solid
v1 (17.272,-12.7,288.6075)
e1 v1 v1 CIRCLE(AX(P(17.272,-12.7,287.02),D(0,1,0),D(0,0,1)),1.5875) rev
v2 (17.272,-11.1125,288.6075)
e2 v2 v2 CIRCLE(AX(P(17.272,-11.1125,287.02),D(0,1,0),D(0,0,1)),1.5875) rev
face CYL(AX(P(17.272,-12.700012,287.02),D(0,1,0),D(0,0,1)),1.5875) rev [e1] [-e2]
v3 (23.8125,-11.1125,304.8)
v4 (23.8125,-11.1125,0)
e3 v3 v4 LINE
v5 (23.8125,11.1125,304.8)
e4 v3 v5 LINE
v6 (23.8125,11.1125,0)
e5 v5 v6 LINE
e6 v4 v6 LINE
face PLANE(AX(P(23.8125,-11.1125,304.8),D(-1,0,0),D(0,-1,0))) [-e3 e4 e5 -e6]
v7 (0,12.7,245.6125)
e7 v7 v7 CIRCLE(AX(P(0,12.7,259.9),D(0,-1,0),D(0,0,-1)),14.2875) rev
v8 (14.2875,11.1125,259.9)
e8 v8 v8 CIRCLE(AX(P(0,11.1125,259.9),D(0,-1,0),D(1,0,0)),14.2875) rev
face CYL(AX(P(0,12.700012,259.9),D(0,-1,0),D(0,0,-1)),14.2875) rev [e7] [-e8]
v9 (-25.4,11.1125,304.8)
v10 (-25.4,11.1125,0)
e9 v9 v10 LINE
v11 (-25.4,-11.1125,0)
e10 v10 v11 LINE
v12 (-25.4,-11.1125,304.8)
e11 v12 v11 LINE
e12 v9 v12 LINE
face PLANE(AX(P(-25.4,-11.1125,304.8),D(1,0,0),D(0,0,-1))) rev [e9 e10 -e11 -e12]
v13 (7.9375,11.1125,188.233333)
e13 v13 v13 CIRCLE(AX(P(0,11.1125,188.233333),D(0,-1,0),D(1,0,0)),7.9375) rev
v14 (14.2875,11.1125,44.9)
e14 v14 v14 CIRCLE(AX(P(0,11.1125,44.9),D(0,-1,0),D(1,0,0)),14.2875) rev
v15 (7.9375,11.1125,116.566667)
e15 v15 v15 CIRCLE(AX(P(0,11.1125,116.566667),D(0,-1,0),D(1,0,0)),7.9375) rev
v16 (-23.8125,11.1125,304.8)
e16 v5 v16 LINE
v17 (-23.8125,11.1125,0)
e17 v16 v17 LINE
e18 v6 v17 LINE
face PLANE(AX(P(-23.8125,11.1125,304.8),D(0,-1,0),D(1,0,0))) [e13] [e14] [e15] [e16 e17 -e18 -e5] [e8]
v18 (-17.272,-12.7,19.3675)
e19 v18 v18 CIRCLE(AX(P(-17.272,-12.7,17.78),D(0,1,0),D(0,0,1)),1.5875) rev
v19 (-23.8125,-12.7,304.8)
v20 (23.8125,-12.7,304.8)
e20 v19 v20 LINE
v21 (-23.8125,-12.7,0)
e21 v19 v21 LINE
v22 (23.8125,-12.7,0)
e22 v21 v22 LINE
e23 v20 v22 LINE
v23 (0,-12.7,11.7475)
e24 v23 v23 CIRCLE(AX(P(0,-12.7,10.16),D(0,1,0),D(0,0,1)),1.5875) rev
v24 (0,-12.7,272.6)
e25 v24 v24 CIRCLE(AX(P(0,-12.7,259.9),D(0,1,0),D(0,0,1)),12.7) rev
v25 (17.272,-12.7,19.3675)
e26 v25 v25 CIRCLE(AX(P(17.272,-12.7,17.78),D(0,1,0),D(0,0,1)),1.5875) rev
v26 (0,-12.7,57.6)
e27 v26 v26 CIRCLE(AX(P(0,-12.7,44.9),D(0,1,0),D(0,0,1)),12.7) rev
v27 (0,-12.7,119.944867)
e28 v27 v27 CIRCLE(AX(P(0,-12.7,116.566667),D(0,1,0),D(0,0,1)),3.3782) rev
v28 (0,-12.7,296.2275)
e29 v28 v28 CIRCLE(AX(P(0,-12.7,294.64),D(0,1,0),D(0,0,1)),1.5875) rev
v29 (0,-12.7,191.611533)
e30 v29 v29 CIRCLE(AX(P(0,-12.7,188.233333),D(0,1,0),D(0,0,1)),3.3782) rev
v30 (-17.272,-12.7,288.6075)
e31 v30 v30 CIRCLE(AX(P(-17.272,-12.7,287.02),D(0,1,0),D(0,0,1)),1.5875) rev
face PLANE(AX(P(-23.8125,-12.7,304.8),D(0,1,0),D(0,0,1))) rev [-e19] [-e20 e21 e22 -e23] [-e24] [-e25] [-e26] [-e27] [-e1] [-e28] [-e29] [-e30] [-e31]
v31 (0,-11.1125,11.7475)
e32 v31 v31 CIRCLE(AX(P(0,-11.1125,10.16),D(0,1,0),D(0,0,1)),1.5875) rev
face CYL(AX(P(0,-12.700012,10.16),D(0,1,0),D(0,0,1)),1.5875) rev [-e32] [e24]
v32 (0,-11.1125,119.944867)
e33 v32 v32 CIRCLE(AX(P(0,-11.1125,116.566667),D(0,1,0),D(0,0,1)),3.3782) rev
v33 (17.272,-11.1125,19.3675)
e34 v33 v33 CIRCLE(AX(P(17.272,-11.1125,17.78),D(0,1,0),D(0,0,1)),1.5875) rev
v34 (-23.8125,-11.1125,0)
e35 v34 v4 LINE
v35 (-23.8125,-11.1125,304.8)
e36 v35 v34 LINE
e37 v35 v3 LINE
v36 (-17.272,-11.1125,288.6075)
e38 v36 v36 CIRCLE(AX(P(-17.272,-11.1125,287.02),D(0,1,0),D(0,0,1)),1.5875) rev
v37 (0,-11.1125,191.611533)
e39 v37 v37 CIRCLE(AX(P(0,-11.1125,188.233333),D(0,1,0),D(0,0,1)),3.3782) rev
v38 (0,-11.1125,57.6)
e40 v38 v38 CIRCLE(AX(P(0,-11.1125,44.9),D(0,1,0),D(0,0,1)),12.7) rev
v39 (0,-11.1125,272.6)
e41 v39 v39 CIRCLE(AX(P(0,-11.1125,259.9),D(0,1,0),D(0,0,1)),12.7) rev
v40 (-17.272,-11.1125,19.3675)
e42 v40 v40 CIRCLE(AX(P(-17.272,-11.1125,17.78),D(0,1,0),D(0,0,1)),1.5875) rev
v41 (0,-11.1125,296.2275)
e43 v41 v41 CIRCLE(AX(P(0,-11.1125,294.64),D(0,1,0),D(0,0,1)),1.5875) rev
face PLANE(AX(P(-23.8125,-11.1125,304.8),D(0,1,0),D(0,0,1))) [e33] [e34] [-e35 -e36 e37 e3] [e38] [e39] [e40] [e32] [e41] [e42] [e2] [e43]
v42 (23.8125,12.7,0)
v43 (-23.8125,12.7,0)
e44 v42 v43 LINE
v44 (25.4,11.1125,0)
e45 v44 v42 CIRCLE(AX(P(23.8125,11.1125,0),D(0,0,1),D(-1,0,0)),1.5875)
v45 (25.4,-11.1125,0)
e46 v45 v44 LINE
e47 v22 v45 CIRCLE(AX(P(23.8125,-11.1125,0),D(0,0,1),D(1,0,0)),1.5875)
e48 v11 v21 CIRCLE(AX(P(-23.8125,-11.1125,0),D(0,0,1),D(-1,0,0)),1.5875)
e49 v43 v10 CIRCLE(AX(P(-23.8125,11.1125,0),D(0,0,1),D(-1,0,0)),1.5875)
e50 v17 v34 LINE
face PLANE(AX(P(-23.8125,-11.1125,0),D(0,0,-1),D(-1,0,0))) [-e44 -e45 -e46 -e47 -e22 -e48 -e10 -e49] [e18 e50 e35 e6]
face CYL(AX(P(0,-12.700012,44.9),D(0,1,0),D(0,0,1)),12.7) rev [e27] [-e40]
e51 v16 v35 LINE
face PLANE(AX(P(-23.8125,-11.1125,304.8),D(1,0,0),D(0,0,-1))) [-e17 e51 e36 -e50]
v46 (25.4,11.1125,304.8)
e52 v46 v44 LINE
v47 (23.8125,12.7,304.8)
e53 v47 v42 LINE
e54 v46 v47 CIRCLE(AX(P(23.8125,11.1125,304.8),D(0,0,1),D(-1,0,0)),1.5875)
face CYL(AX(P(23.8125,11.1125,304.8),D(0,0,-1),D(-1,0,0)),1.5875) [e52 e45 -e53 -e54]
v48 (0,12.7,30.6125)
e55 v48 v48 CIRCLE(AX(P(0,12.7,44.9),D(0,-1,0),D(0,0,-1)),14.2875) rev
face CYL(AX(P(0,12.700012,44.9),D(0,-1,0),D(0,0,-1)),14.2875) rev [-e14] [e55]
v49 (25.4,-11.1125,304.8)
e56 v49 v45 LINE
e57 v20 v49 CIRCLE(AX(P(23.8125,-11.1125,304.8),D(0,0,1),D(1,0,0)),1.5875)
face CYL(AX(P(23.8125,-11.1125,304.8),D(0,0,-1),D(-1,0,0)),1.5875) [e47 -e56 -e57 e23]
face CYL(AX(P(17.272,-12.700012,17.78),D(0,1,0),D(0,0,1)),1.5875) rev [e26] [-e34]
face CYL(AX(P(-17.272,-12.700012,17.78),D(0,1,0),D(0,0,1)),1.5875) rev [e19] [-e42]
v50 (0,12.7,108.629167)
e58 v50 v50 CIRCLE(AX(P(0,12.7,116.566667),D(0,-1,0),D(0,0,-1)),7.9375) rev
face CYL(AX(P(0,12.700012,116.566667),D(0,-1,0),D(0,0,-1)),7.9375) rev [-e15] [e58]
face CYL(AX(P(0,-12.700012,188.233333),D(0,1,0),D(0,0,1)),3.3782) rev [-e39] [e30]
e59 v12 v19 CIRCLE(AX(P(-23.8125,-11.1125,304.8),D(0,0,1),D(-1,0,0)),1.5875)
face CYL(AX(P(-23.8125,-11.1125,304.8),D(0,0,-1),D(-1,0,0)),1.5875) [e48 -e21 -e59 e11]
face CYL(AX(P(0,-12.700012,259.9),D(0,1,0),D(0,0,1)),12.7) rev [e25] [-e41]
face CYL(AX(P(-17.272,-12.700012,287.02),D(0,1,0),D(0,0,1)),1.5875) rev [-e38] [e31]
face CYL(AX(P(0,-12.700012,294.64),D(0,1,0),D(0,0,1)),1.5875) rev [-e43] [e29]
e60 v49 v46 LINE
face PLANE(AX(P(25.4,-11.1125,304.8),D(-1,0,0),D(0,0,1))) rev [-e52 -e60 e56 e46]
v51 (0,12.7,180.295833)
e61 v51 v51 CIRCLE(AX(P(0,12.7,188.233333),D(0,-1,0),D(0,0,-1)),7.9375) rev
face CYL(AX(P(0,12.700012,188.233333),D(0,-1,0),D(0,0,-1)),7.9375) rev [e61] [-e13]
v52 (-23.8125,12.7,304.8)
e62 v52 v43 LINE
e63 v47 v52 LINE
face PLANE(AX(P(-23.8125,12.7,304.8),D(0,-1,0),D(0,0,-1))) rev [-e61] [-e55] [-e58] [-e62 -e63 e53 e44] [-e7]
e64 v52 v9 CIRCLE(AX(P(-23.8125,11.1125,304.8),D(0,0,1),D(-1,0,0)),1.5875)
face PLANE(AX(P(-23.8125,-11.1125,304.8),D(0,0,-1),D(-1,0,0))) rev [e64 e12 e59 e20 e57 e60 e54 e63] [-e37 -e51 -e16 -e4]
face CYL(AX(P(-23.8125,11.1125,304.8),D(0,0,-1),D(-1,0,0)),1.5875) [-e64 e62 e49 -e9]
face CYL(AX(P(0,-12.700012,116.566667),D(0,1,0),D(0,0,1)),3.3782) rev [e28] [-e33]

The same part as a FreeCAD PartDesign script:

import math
import FreeCAD as App
import Part
import Sketcher
from FreeCAD import Vector
Q = App.Units.Quantity

doc = App.newDocument("Part")
params = doc.addObject("Spreadsheet::Sheet", "Params")
for row, (alias, value) in enumerate([
    ("sketch1_radius", "0.0625 in"),
    ("pad1_length", "12 in"),
    ("sketch2_diameter", "1.125 in"),
    ("sketch3_diameter", "1.125 in"),
    ("sketch4_diameter", "1.125 in"),
    ("pocket3_length", "1 mm"),
    ("sketch5_diameter", "1 in"),
    ("sketch6_diameter", "1 in"),
    ("sketch7_diameter", "1 in"),
    ("pocket6_length", "1 mm"),
    ("sketch8_diameter", "0.266 in"),
    ("sketch9_diameter", "0.266 in"),
    ("sketch10_diameter", "0.266 in"),
    ("pocket9_length", "1 mm"),
    ("sketch11_diameter", "0.625 in"),
    ("sketch12_diameter", "0.625 in"),
    ("sketch13_diameter", "0.625 in"),
    ("pocket12_length", "1 mm"),
    ("sketch14_diameter", "0.125 in"),
    ("sketch15_diameter", "0.125 in"),
    ("sketch16_diameter", "0.125 in"),
    ("sketch17_diameter", "0.125 in"),
    ("sketch18_diameter", "0.125 in"),
    ("sketch19_diameter", "0.125 in"),
    ("sketch20_diameter", "0.125 in"),
    ("pocket19_length", "1 mm"),
], start=1):
    params.set(f"A{row}", alias)
    params.set(f"B{row}", "=" + value)
    params.setAlias(f"B{row}", alias)

body = doc.addObject("PartDesign::Body", "Body")

# Sketch on XY plane
sketch1 = body.newObject("Sketcher::SketchObject", "Sketch")
sketch1.AttachmentSupport = (doc.getObject("XY_Plane"), [""])
sketch1.MapMode = "FlatFace"
sketch1.addGeometry(Part.LineSegment(Vector(-23.8, -12.7, 0), Vector(23.8, -12.7, 0)), False)
sketch1.addGeometry(Part.ArcOfCircle(Part.Circle(Vector(23.8, -11.1, 0), Vector(0, 0, 1), 1.6), math.radians(-90), math.radians(0)), False)
sketch1.addGeometry(Part.LineSegment(Vector(25.4, -11.1, 0), Vector(25.4, 11.1, 0)), False)
sketch1.addGeometry(Part.ArcOfCircle(Part.Circle(Vector(23.8, 11.1, 0), Vector(0, 0, 1), 1.6), math.radians(0), math.radians(90)), False)
sketch1.addGeometry(Part.LineSegment(Vector(23.8, 12.7, 0), Vector(-23.8, 12.7, 0)), False)
sketch1.addGeometry(Part.ArcOfCircle(Part.Circle(Vector(-23.8, 11.1, 0), Vector(0, 0, 1), 1.6), math.radians(90), math.radians(180)), False)
sketch1.addGeometry(Part.LineSegment(Vector(-25.4, 11.1, 0), Vector(-25.4, -11.1, 0)), False)
sketch1.addGeometry(Part.ArcOfCircle(Part.Circle(Vector(-23.8, -11.1, 0), Vector(0, 0, 1), 1.6), math.radians(180), math.radians(270)), False)
sketch1.addGeometry(Part.LineSegment(Vector(23.8, -11.1, 0), Vector(-23.8, -11.1, 0)), False)
sketch1.addGeometry(Part.LineSegment(Vector(-23.8, -11.1, 0), Vector(-23.8, 11.1, 0)), False)
sketch1.addGeometry(Part.LineSegment(Vector(-23.8, 11.1, 0), Vector(23.8, 11.1, 0)), False)
sketch1.addGeometry(Part.LineSegment(Vector(23.8, 11.1, 0), Vector(23.8, -11.1, 0)), False)
sketch1.addConstraint(Sketcher.Constraint("Tangent", 0, 2, 1, 1))
sketch1.addConstraint(Sketcher.Constraint("Tangent", 1, 2, 2, 1))
sketch1.addConstraint(Sketcher.Constraint("Tangent", 2, 2, 3, 1))
sketch1.addConstraint(Sketcher.Constraint("Tangent", 3, 2, 4, 1))
sketch1.addConstraint(Sketcher.Constraint("Tangent", 4, 2, 5, 1))
sketch1.addConstraint(Sketcher.Constraint("Tangent", 5, 2, 6, 1))
sketch1.addConstraint(Sketcher.Constraint("Tangent", 6, 2, 7, 1))
sketch1.addConstraint(Sketcher.Constraint("Tangent", 7, 2, 0, 1))
sketch1.addConstraint(Sketcher.Constraint("Coincident", 8, 2, 9, 1))
sketch1.addConstraint(Sketcher.Constraint("Coincident", 9, 2, 10, 1))
sketch1.addConstraint(Sketcher.Constraint("Coincident", 10, 2, 11, 1))
sketch1.addConstraint(Sketcher.Constraint("Coincident", 11, 2, 8, 1))
sketch1.addConstraint(Sketcher.Constraint("Horizontal", 0))
sketch1.addConstraint(Sketcher.Constraint("Vertical", 2))
sketch1.addConstraint(Sketcher.Constraint("Horizontal", 4))
sketch1.addConstraint(Sketcher.Constraint("Vertical", 6))
sketch1.addConstraint(Sketcher.Constraint("Horizontal", 8))
sketch1.addConstraint(Sketcher.Constraint("Vertical", 9))
sketch1.addConstraint(Sketcher.Constraint("Horizontal", 10))
sketch1.addConstraint(Sketcher.Constraint("Vertical", 11))
sketch1.addConstraint(Sketcher.Constraint("Coincident", 8, 2, 7, 3))
sketch1.addConstraint(Sketcher.Constraint("Coincident", 9, 2, 5, 3))
sketch1.addConstraint(Sketcher.Constraint("Coincident", 10, 2, 3, 3))
sketch1.addConstraint(Sketcher.Constraint("Equal", 1, 3))
sketch1.addConstraint(Sketcher.Constraint("Symmetric", 1, 3, 5, 3, -1, 1))
sketch1.addConstraint(Sketcher.Constraint("DistanceX", -1, 1, 1, 2, Q("1 in")))
sketch1.addConstraint(Sketcher.Constraint("Radius", 1, Q("0.0625 in")))
sketch1.addConstraint(Sketcher.Constraint("DistanceY", 0, 2, 3, 2, Q("1 in")))
sketch1.setExpression("Constraints[26]", "Params.sketch1_radius")
pad1 = body.newObject("PartDesign::Pad", "Pad")
pad1.Profile = sketch1
pad1.setExpression("Length", "Params.pad1_length")

# Sketch on XZ plane
sketch2 = body.newObject("Sketcher::SketchObject", "Sketch001")
sketch2.AttachmentSupport = (doc.getObject("XZ_Plane"), [""])
sketch2.MapMode = "FlatFace"
sketch2.AttachmentOffset = App.Placement(Vector(0, 0, -0.5 * 25.4), App.Rotation())
sketch2.addGeometry(Part.Circle(Vector(0, 260, 0), Vector(0, 0, 1), 14), False)
sketch2.addConstraint(Sketcher.Constraint("PointOnObject", 0, 3, -2))
sketch2.addConstraint(Sketcher.Constraint("Diameter", 0, Q("1.125 in")))
sketch2.addConstraint(Sketcher.Constraint("DistanceY", -1, 1, 0, 3, Q("259.9 mm")))
sketch2.setExpression("Constraints[1]", "Params.sketch2_diameter")
pocket1 = body.newObject("PartDesign::Pocket", "Pocket")
pocket1.Profile = sketch2
pocket1.Type = "UpToFirst"
pocket1.Reversed = True

# Sketch on XZ plane
sketch3 = body.newObject("Sketcher::SketchObject", "Sketch002")
sketch3.AttachmentSupport = (doc.getObject("XZ_Plane"), [""])
sketch3.MapMode = "FlatFace"
sketch3.AttachmentOffset = App.Placement(Vector(0, 0, -0.5 * 25.4), App.Rotation())
sketch3.addGeometry(Part.Circle(Vector(0, 45, 0), Vector(0, 0, 1), 14), False)
sketch3.addConstraint(Sketcher.Constraint("PointOnObject", 0, 3, -2))
sketch3.addConstraint(Sketcher.Constraint("Diameter", 0, Q("1.125 in")))
sketch3.addConstraint(Sketcher.Constraint("DistanceY", -1, 1, 0, 3, Q("44.9 mm")))
sketch3.setExpression("Constraints[1]", "Params.sketch3_diameter")
pocket2 = body.newObject("PartDesign::Pocket", "Pocket001")
pocket2.Profile = sketch3
pocket2.Type = "UpToFirst"
pocket2.Reversed = True

# Sketch on XZ plane
sketch4 = body.newObject("Sketcher::SketchObject", "Sketch003")
sketch4.AttachmentSupport = (doc.getObject("XZ_Plane"), [""])
sketch4.MapMode = "FlatFace"
sketch4.AttachmentOffset = App.Placement(Vector(0, 0, -0.5 * 25.4), App.Rotation())
sketch4.addGeometry(Part.Circle(Vector(0, 260, 0), Vector(0, 0, 1), 14), False)
sketch4.addGeometry(Part.Circle(Vector(0, 45, 0), Vector(0, 0, 1), 14), False)
sketch4.addConstraint(Sketcher.Constraint("Equal", 0, 1))
sketch4.addConstraint(Sketcher.Constraint("PointOnObject", 0, 3, -2))
sketch4.addConstraint(Sketcher.Constraint("PointOnObject", 1, 3, -2))
sketch4.addConstraint(Sketcher.Constraint("Diameter", 0, Q("1.125 in")))
sketch4.addConstraint(Sketcher.Constraint("DistanceY", -1, 1, 0, 3, Q("259.9 mm")))
sketch4.addConstraint(Sketcher.Constraint("DistanceY", -1, 1, 1, 3, Q("44.9 mm")))
sketch4.setExpression("Constraints[3]", "Params.sketch4_diameter")
pocket3 = body.newObject("PartDesign::Pocket", "Pocket002")
pocket3.Profile = sketch4
pocket3.setExpression("Length", "Params.pocket3_length")

# Sketch on XZ plane
sketch5 = body.newObject("Sketcher::SketchObject", "Sketch004")
sketch5.AttachmentSupport = (doc.getObject("XZ_Plane"), [""])
sketch5.MapMode = "FlatFace"
sketch5.AttachmentOffset = App.Placement(Vector(0, 0, 0.5 * 25.4), App.Rotation())
sketch5.addGeometry(Part.Circle(Vector(0, 45, 0), Vector(0, 0, 1), 13), False)
sketch5.addConstraint(Sketcher.Constraint("PointOnObject", 0, 3, -2))
sketch5.addConstraint(Sketcher.Constraint("Diameter", 0, Q("1 in")))
sketch5.addConstraint(Sketcher.Constraint("DistanceY", -1, 1, 0, 3, Q("44.9 mm")))
sketch5.setExpression("Constraints[1]", "Params.sketch5_diameter")
pocket4 = body.newObject("PartDesign::Pocket", "Pocket003")
pocket4.Profile = sketch5
pocket4.Type = "UpToFirst"

# Sketch on XZ plane
sketch6 = body.newObject("Sketcher::SketchObject", "Sketch005")
sketch6.AttachmentSupport = (doc.getObject("XZ_Plane"), [""])
sketch6.MapMode = "FlatFace"
sketch6.AttachmentOffset = App.Placement(Vector(0, 0, 0.5 * 25.4), App.Rotation())
sketch6.addGeometry(Part.Circle(Vector(0, 260, 0), Vector(0, 0, 1), 13), False)
sketch6.addConstraint(Sketcher.Constraint("PointOnObject", 0, 3, -2))
sketch6.addConstraint(Sketcher.Constraint("Diameter", 0, Q("1 in")))
sketch6.addConstraint(Sketcher.Constraint("DistanceY", -1, 1, 0, 3, Q("259.9 mm")))
sketch6.setExpression("Constraints[1]", "Params.sketch6_diameter")
pocket5 = body.newObject("PartDesign::Pocket", "Pocket004")
pocket5.Profile = sketch6
pocket5.Type = "UpToFirst"

# Sketch on XZ plane
sketch7 = body.newObject("Sketcher::SketchObject", "Sketch006")
sketch7.AttachmentSupport = (doc.getObject("XZ_Plane"), [""])
sketch7.MapMode = "FlatFace"
sketch7.AttachmentOffset = App.Placement(Vector(0, 0, 0.5 * 25.4), App.Rotation())
sketch7.addGeometry(Part.Circle(Vector(0, 45, 0), Vector(0, 0, 1), 13), False)
sketch7.addGeometry(Part.Circle(Vector(0, 260, 0), Vector(0, 0, 1), 13), False)
sketch7.addConstraint(Sketcher.Constraint("Equal", 0, 1))
sketch7.addConstraint(Sketcher.Constraint("PointOnObject", 0, 3, -2))
sketch7.addConstraint(Sketcher.Constraint("PointOnObject", 1, 3, -2))
sketch7.addConstraint(Sketcher.Constraint("Diameter", 0, Q("1 in")))
sketch7.addConstraint(Sketcher.Constraint("DistanceY", -1, 1, 0, 3, Q("44.9 mm")))
sketch7.addConstraint(Sketcher.Constraint("DistanceY", -1, 1, 1, 3, Q("259.9 mm")))
sketch7.setExpression("Constraints[3]", "Params.sketch7_diameter")
pocket6 = body.newObject("PartDesign::Pocket", "Pocket005")
pocket6.Profile = sketch7
pocket6.setExpression("Length", "Params.pocket6_length")
pocket6.Reversed = True

# Sketch on XZ plane
sketch8 = body.newObject("Sketcher::SketchObject", "Sketch007")
sketch8.AttachmentSupport = (doc.getObject("XZ_Plane"), [""])
sketch8.MapMode = "FlatFace"
sketch8.AttachmentOffset = App.Placement(Vector(0, 0, 0.5 * 25.4), App.Rotation())
sketch8.addGeometry(Part.Circle(Vector(0, 116.6, 0), Vector(0, 0, 1), 3.4), False)
sketch8.addConstraint(Sketcher.Constraint("PointOnObject", 0, 3, -2))
sketch8.addConstraint(Sketcher.Constraint("Diameter", 0, Q("0.266 in")))
sketch8.addConstraint(Sketcher.Constraint("DistanceY", -1, 1, 0, 3, Q("116.566667 mm")))
sketch8.setExpression("Constraints[1]", "Params.sketch8_diameter")
pocket7 = body.newObject("PartDesign::Pocket", "Pocket006")
pocket7.Profile = sketch8
pocket7.Type = "UpToFirst"

# Sketch on XZ plane
sketch9 = body.newObject("Sketcher::SketchObject", "Sketch008")
sketch9.AttachmentSupport = (doc.getObject("XZ_Plane"), [""])
sketch9.MapMode = "FlatFace"
sketch9.AttachmentOffset = App.Placement(Vector(0, 0, 0.5 * 25.4), App.Rotation())
sketch9.addGeometry(Part.Circle(Vector(0, 188.2, 0), Vector(0, 0, 1), 3.4), False)
sketch9.addConstraint(Sketcher.Constraint("PointOnObject", 0, 3, -2))
sketch9.addConstraint(Sketcher.Constraint("Diameter", 0, Q("0.266 in")))
sketch9.addConstraint(Sketcher.Constraint("DistanceY", -1, 1, 0, 3, Q("188.233333 mm")))
sketch9.setExpression("Constraints[1]", "Params.sketch9_diameter")
pocket8 = body.newObject("PartDesign::Pocket", "Pocket007")
pocket8.Profile = sketch9
pocket8.Type = "UpToFirst"

# Sketch on XZ plane
sketch10 = body.newObject("Sketcher::SketchObject", "Sketch009")
sketch10.AttachmentSupport = (doc.getObject("XZ_Plane"), [""])
sketch10.MapMode = "FlatFace"
sketch10.AttachmentOffset = App.Placement(Vector(0, 0, 0.5 * 25.4), App.Rotation())
sketch10.addGeometry(Part.Circle(Vector(0, 116.6, 0), Vector(0, 0, 1), 3.4), False)
sketch10.addGeometry(Part.Circle(Vector(0, 188.2, 0), Vector(0, 0, 1), 3.4), False)
sketch10.addConstraint(Sketcher.Constraint("Equal", 0, 1))
sketch10.addConstraint(Sketcher.Constraint("PointOnObject", 0, 3, -2))
sketch10.addConstraint(Sketcher.Constraint("PointOnObject", 1, 3, -2))
sketch10.addConstraint(Sketcher.Constraint("Diameter", 0, Q("0.266 in")))
sketch10.addConstraint(Sketcher.Constraint("DistanceY", -1, 1, 0, 3, Q("116.566667 mm")))
sketch10.addConstraint(Sketcher.Constraint("DistanceY", -1, 1, 1, 3, Q("188.233333 mm")))
sketch10.setExpression("Constraints[3]", "Params.sketch10_diameter")
pocket9 = body.newObject("PartDesign::Pocket", "Pocket008")
pocket9.Profile = sketch10
pocket9.setExpression("Length", "Params.pocket9_length")
pocket9.Reversed = True

# Sketch on XZ plane
sketch11 = body.newObject("Sketcher::SketchObject", "Sketch010")
sketch11.AttachmentSupport = (doc.getObject("XZ_Plane"), [""])
sketch11.MapMode = "FlatFace"
sketch11.AttachmentOffset = App.Placement(Vector(0, 0, -0.5 * 25.4), App.Rotation())
sketch11.addGeometry(Part.Circle(Vector(0, 117, 0), Vector(0, 0, 1), 8), False)
sketch11.addConstraint(Sketcher.Constraint("PointOnObject", 0, 3, -2))
sketch11.addConstraint(Sketcher.Constraint("Diameter", 0, Q("0.625 in")))
sketch11.addConstraint(Sketcher.Constraint("DistanceY", -1, 1, 0, 3, Q("116.566667 mm")))
sketch11.setExpression("Constraints[1]", "Params.sketch11_diameter")
pocket10 = body.newObject("PartDesign::Pocket", "Pocket009")
pocket10.Profile = sketch11
pocket10.Type = "UpToFirst"
pocket10.Reversed = True

# Sketch on XZ plane
sketch12 = body.newObject("Sketcher::SketchObject", "Sketch011")
sketch12.AttachmentSupport = (doc.getObject("XZ_Plane"), [""])
sketch12.MapMode = "FlatFace"
sketch12.AttachmentOffset = App.Placement(Vector(0, 0, -0.5 * 25.4), App.Rotation())
sketch12.addGeometry(Part.Circle(Vector(0, 188, 0), Vector(0, 0, 1), 8), False)
sketch12.addConstraint(Sketcher.Constraint("PointOnObject", 0, 3, -2))
sketch12.addConstraint(Sketcher.Constraint("Diameter", 0, Q("0.625 in")))
sketch12.addConstraint(Sketcher.Constraint("DistanceY", -1, 1, 0, 3, Q("188.233333 mm")))
sketch12.setExpression("Constraints[1]", "Params.sketch12_diameter")
pocket11 = body.newObject("PartDesign::Pocket", "Pocket010")
pocket11.Profile = sketch12
pocket11.Type = "UpToFirst"
pocket11.Reversed = True

# Sketch on XZ plane
sketch13 = body.newObject("Sketcher::SketchObject", "Sketch012")
sketch13.AttachmentSupport = (doc.getObject("XZ_Plane"), [""])
sketch13.MapMode = "FlatFace"
sketch13.AttachmentOffset = App.Placement(Vector(0, 0, -0.5 * 25.4), App.Rotation())
sketch13.addGeometry(Part.Circle(Vector(0, 117, 0), Vector(0, 0, 1), 8), False)
sketch13.addGeometry(Part.Circle(Vector(0, 188, 0), Vector(0, 0, 1), 8), False)
sketch13.addConstraint(Sketcher.Constraint("Equal", 0, 1))
sketch13.addConstraint(Sketcher.Constraint("PointOnObject", 0, 3, -2))
sketch13.addConstraint(Sketcher.Constraint("PointOnObject", 1, 3, -2))
sketch13.addConstraint(Sketcher.Constraint("Diameter", 0, Q("0.625 in")))
sketch13.addConstraint(Sketcher.Constraint("DistanceY", -1, 1, 0, 3, Q("116.566667 mm")))
sketch13.addConstraint(Sketcher.Constraint("DistanceY", -1, 1, 1, 3, Q("188.233333 mm")))
sketch13.setExpression("Constraints[3]", "Params.sketch13_diameter")
pocket12 = body.newObject("PartDesign::Pocket", "Pocket011")
pocket12.Profile = sketch13
pocket12.setExpression("Length", "Params.pocket12_length")

# Sketch on XZ plane
sketch14 = body.newObject("Sketcher::SketchObject", "Sketch013")
sketch14.AttachmentSupport = (doc.getObject("XZ_Plane"), [""])
sketch14.MapMode = "FlatFace"
sketch14.AttachmentOffset = App.Placement(Vector(0, 0, 0.5 * 25.4), App.Rotation())
sketch14.addGeometry(Part.Circle(Vector(17.3, 287, 0), Vector(0, 0, 1), 1.6), False)
sketch14.addConstraint(Sketcher.Constraint("Diameter", 0, Q("0.125 in")))
sketch14.addConstraint(Sketcher.Constraint("DistanceY", -1, 1, 0, 3, Q("11.3 in")))
sketch14.addConstraint(Sketcher.Constraint("DistanceX", -1, 1, 0, 3, Q("0.68 in")))
sketch14.setExpression("Constraints[0]", "Params.sketch14_diameter")
pocket13 = body.newObject("PartDesign::Pocket", "Pocket012")
pocket13.Profile = sketch14
pocket13.Type = "UpToFirst"

# Sketch on XZ plane
sketch15 = body.newObject("Sketcher::SketchObject", "Sketch014")
sketch15.AttachmentSupport = (doc.getObject("XZ_Plane"), [""])
sketch15.MapMode = "FlatFace"
sketch15.AttachmentOffset = App.Placement(Vector(0, 0, 0.5 * 25.4), App.Rotation())
sketch15.addGeometry(Part.Circle(Vector(0, 294.6, 0), Vector(0, 0, 1), 1.6), False)
sketch15.addConstraint(Sketcher.Constraint("PointOnObject", 0, 3, -2))
sketch15.addConstraint(Sketcher.Constraint("Diameter", 0, Q("0.125 in")))
sketch15.addConstraint(Sketcher.Constraint("DistanceY", -1, 1, 0, 3, Q("11.6 in")))
sketch15.setExpression("Constraints[1]", "Params.sketch15_diameter")
pocket14 = body.newObject("PartDesign::Pocket", "Pocket013")
pocket14.Profile = sketch15
pocket14.Type = "UpToFirst"

# Sketch on XZ plane
sketch16 = body.newObject("Sketcher::SketchObject", "Sketch015")
sketch16.AttachmentSupport = (doc.getObject("XZ_Plane"), [""])
sketch16.MapMode = "FlatFace"
sketch16.AttachmentOffset = App.Placement(Vector(0, 0, 0.5 * 25.4), App.Rotation())
sketch16.addGeometry(Part.Circle(Vector(-17.3, 287, 0), Vector(0, 0, 1), 1.6), False)
sketch16.addConstraint(Sketcher.Constraint("Diameter", 0, Q("0.125 in")))
sketch16.addConstraint(Sketcher.Constraint("DistanceY", -1, 1, 0, 3, Q("11.3 in")))
sketch16.addConstraint(Sketcher.Constraint("DistanceX", 0, 3, -1, 1, Q("0.68 in")))
sketch16.setExpression("Constraints[0]", "Params.sketch16_diameter")
pocket15 = body.newObject("PartDesign::Pocket", "Pocket014")
pocket15.Profile = sketch16
pocket15.Type = "UpToFirst"

# Sketch on XZ plane
sketch17 = body.newObject("Sketcher::SketchObject", "Sketch016")
sketch17.AttachmentSupport = (doc.getObject("XZ_Plane"), [""])
sketch17.MapMode = "FlatFace"
sketch17.AttachmentOffset = App.Placement(Vector(0, 0, 0.5 * 25.4), App.Rotation())
sketch17.addGeometry(Part.Circle(Vector(-17.3, 17.8, 0), Vector(0, 0, 1), 1.6), False)
sketch17.addConstraint(Sketcher.Constraint("Diameter", 0, Q("0.125 in")))
sketch17.addConstraint(Sketcher.Constraint("DistanceY", -1, 1, 0, 3, Q("0.7 in")))
sketch17.addConstraint(Sketcher.Constraint("DistanceX", 0, 3, -1, 1, Q("0.68 in")))
sketch17.setExpression("Constraints[0]", "Params.sketch17_diameter")
pocket16 = body.newObject("PartDesign::Pocket", "Pocket015")
pocket16.Profile = sketch17
pocket16.Type = "UpToFirst"

# Sketch on XZ plane
sketch18 = body.newObject("Sketcher::SketchObject", "Sketch017")
sketch18.AttachmentSupport = (doc.getObject("XZ_Plane"), [""])
sketch18.MapMode = "FlatFace"
sketch18.AttachmentOffset = App.Placement(Vector(0, 0, 0.5 * 25.4), App.Rotation())
sketch18.addGeometry(Part.Circle(Vector(0, 10.2, 0), Vector(0, 0, 1), 1.6), False)
sketch18.addConstraint(Sketcher.Constraint("PointOnObject", 0, 3, -2))
sketch18.addConstraint(Sketcher.Constraint("Diameter", 0, Q("0.125 in")))
sketch18.addConstraint(Sketcher.Constraint("DistanceY", -1, 1, 0, 3, Q("0.4 in")))
sketch18.setExpression("Constraints[1]", "Params.sketch18_diameter")
pocket17 = body.newObject("PartDesign::Pocket", "Pocket016")
pocket17.Profile = sketch18
pocket17.Type = "UpToFirst"

# Sketch on XZ plane
sketch19 = body.newObject("Sketcher::SketchObject", "Sketch018")
sketch19.AttachmentSupport = (doc.getObject("XZ_Plane"), [""])
sketch19.MapMode = "FlatFace"
sketch19.AttachmentOffset = App.Placement(Vector(0, 0, 0.5 * 25.4), App.Rotation())
sketch19.addGeometry(Part.Circle(Vector(17.3, 17.8, 0), Vector(0, 0, 1), 1.6), False)
sketch19.addConstraint(Sketcher.Constraint("Diameter", 0, Q("0.125 in")))
sketch19.addConstraint(Sketcher.Constraint("DistanceY", -1, 1, 0, 3, Q("0.7 in")))
sketch19.addConstraint(Sketcher.Constraint("DistanceX", -1, 1, 0, 3, Q("0.68 in")))
sketch19.setExpression("Constraints[0]", "Params.sketch19_diameter")
pocket18 = body.newObject("PartDesign::Pocket", "Pocket017")
pocket18.Profile = sketch19
pocket18.Type = "UpToFirst"

# Sketch on XZ plane
sketch20 = body.newObject("Sketcher::SketchObject", "Sketch019")
sketch20.AttachmentSupport = (doc.getObject("XZ_Plane"), [""])
sketch20.MapMode = "FlatFace"
sketch20.AttachmentOffset = App.Placement(Vector(0, 0, 0.5 * 25.4), App.Rotation())
sketch20.addGeometry(Part.Circle(Vector(17.3, 287, 0), Vector(0, 0, 1), 1.6), False)
sketch20.addGeometry(Part.Circle(Vector(0, 294.6, 0), Vector(0, 0, 1), 1.6), False)
sketch20.addGeometry(Part.Circle(Vector(-17.3, 287, 0), Vector(0, 0, 1), 1.6), False)
sketch20.addGeometry(Part.Circle(Vector(-17.3, 17.8, 0), Vector(0, 0, 1), 1.6), False)
sketch20.addGeometry(Part.Circle(Vector(0, 10.2, 0), Vector(0, 0, 1), 1.6), False)
sketch20.addGeometry(Part.Circle(Vector(17.3, 17.8, 0), Vector(0, 0, 1), 1.6), False)
sketch20.addConstraint(Sketcher.Constraint("Equal", 0, 1))
sketch20.addConstraint(Sketcher.Constraint("Equal", 1, 2))
sketch20.addConstraint(Sketcher.Constraint("Equal", 2, 3))
sketch20.addConstraint(Sketcher.Constraint("Equal", 3, 4))
sketch20.addConstraint(Sketcher.Constraint("Equal", 4, 5))
sketch20.addConstraint(Sketcher.Constraint("Symmetric", 0, 3, 2, 3, -2))
sketch20.addConstraint(Sketcher.Constraint("Symmetric", 3, 3, 5, 3, -2))
sketch20.addConstraint(Sketcher.Constraint("PointOnObject", 1, 3, -2))
sketch20.addConstraint(Sketcher.Constraint("PointOnObject", 4, 3, -2))
sketch20.addConstraint(Sketcher.Constraint("Vertical", 2, 3, 3, 3))
sketch20.addConstraint(Sketcher.Constraint("Diameter", 0, Q("0.125 in")))
sketch20.addConstraint(Sketcher.Constraint("DistanceY", -1, 1, 0, 3, Q("11.3 in")))
sketch20.addConstraint(Sketcher.Constraint("DistanceY", -1, 1, 1, 3, Q("11.6 in")))
sketch20.addConstraint(Sketcher.Constraint("DistanceY", -1, 1, 3, 3, Q("0.7 in")))
sketch20.addConstraint(Sketcher.Constraint("DistanceY", -1, 1, 4, 3, Q("0.4 in")))
sketch20.addConstraint(Sketcher.Constraint("DistanceX", -1, 1, 0, 3, Q("0.68 in")))
sketch20.setExpression("Constraints[10]", "Params.sketch20_diameter")
pocket19 = body.newObject("PartDesign::Pocket", "Pocket018")
pocket19.Profile = sketch20
pocket19.setExpression("Length", "Params.pocket19_length")
pocket19.Reversed = True

doc.recompute()
